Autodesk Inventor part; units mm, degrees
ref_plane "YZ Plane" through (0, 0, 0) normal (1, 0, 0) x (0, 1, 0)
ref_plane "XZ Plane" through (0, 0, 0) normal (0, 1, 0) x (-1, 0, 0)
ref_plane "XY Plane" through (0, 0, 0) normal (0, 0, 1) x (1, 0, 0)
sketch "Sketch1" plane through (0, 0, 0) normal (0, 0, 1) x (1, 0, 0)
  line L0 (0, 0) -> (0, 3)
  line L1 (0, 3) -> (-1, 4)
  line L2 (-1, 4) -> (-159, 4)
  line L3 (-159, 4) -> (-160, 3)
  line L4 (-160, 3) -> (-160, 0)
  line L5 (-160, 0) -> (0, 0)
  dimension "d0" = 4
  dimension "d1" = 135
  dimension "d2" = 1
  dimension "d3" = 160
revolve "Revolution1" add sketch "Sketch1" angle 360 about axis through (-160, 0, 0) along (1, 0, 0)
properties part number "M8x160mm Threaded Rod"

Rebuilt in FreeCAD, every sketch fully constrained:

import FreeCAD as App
import Part
import Sketcher

doc = App.newDocument("Part")
body = doc.addObject("PartDesign::Body", "Body")

# Sketch on XY plane
sketch1 = body.newObject("Sketcher::SketchObject", "Sketch")
sketch1.AttachmentSupport = (doc.getObject("XY_Plane"), [""])
sketch1.MapMode = "FlatFace"
sketch1.addGeometry([
    Part.LineSegment(App.Vector(-160, 0, 0), App.Vector(0, 0, 0)),  # 0
    Part.LineSegment(App.Vector(0, 0, 0), App.Vector(0, 3, 0)),  # 1
    Part.LineSegment(App.Vector(0, 3, 0), App.Vector(-1, 4, 0)),  # 2
    Part.LineSegment(App.Vector(-1, 4, 0), App.Vector(-159, 4, 0)),  # 3
    Part.LineSegment(App.Vector(-159, 4, 0), App.Vector(-160, 3, 0)),  # 4
    Part.LineSegment(App.Vector(-160, 3, 0), App.Vector(-160, 0, 0)),  # 5
], False)
sketch1.addConstraint([
    Sketcher.Constraint("Coincident", 0, 2, 1, 1),
    Sketcher.Constraint("Coincident", 1, 2, 2, 1),
    Sketcher.Constraint("Coincident", 2, 2, 3, 1),
    Sketcher.Constraint("Coincident", 3, 2, 4, 1),
    Sketcher.Constraint("Coincident", 4, 2, 5, 1),
    Sketcher.Constraint("Coincident", 5, 2, 0, 1),
    Sketcher.Constraint("Horizontal", 0),
    Sketcher.Constraint("Vertical", 1),
    Sketcher.Constraint("Horizontal", 3),
    Sketcher.Constraint("Vertical", 5),
    Sketcher.Constraint("Coincident", 0, 2, -1, 1),
    Sketcher.Constraint("Perpendicular", 2, 4),
    Sketcher.Constraint("Horizontal", 1, 2, 4, 2),
    Sketcher.Constraint("Equal", 2, 4),
    Sketcher.Constraint("DistanceX", 0, 1, 0, 2, 160.0),
    Sketcher.Constraint("DistanceX", 2, 2, -1, 1, 1.0),
    Sketcher.Constraint("DistanceY", -1, 1, 2, 2, 4.0),
])
revolution = body.newObject("PartDesign::Revolution", "Revolution")
revolution.Profile = sketch1
revolution.ReferenceAxis = (sketch1, ["H_Axis"])
revolution.Angle = 360

doc.recompute()
